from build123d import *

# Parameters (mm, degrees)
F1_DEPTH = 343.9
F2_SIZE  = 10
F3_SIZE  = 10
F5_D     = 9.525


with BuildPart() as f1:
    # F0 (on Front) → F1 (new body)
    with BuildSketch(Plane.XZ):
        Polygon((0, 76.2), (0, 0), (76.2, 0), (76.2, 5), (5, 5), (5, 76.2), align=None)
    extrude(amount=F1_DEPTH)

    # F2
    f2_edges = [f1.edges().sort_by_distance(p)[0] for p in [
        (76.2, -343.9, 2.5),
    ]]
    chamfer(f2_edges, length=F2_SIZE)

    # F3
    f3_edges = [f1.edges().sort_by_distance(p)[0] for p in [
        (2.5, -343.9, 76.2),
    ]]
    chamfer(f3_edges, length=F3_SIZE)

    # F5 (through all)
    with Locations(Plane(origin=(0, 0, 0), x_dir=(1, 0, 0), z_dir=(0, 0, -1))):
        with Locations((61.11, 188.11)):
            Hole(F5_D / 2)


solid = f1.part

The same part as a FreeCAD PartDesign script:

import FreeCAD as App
import Part
import Sketcher


def edges_at(feature, points):
    """Names of the edges that pass closest to the given points."""
    edges = feature.Shape.Edges
    near = lambda p: min(range(len(edges)), key=lambda i: edges[i].distToShape(Part.Vertex(*p))[0])
    return sorted({f"Edge{near(p) + 1}" for p in points})


def add_polygon(sketch, points):
    """Adds a closed chain of lines whose ends are joined by coincident constraints."""
    first, n = sketch.GeometryCount, len(points)
    for a, b in zip(points, points[1:] + points[:1]):
        sketch.addGeometry(Part.LineSegment(App.Vector(*a, 0), App.Vector(*b, 0)), False)
    for i in range(n):
        sketch.addConstraint(Sketcher.Constraint("Coincident", first + i, 2, first + (i + 1) % n, 1))

doc = App.newDocument("Part")
params = doc.addObject("Spreadsheet::Sheet", "Params")
for row, (alias, value) in enumerate([
    ("sketch1_width", "5 mm"),
    ("sketch1_width2", "76.2 mm"),
    ("pad1_length", "343.9 mm"),
    ("chamfer_size", "10 mm"),
    ("chamfer2_size", "10 mm"),
    ("hole_diameter", "9.525 mm"),
], start=1):
    params.set(f"A{row}", alias)
    params.set(f"B{row}", "=" + value)
    params.setAlias(f"B{row}", alias)

body = doc.addObject("PartDesign::Body", "Body")

sketch1 = doc.addObject("Sketcher::SketchObject", "Sketch")
body.addObject(sketch1)
sketch1.AttachmentSupport = (doc.XZ_Plane, [""])
sketch1.MapMode = "FlatFace"
add_polygon(sketch1, [(0, 76), (0, 0), (76, 0), (76, 5), (5, 5), (5, 76)])
sketch1.addConstraint([
    Sketcher.Constraint("Vertical", 0),
    Sketcher.Constraint("Horizontal", 1),
    Sketcher.Constraint("Vertical", 2),
    Sketcher.Constraint("Horizontal", 3),
    Sketcher.Constraint("Vertical", 4),
    Sketcher.Constraint("Horizontal", 5),
    Sketcher.Constraint("Coincident", 0, 2, -1, 1),
    Sketcher.Constraint("Equal", 1, 0),
    Sketcher.Constraint("Equal", 5, 2),
    Sketcher.Constraint("DistanceX", 5, 2, 5, 1, 5.0),
    Sketcher.Constraint("DistanceX", 1, 1, 1, 2, 76.2),
])
sketch1.setExpression("Constraints[15]", "Params.sketch1_width")
sketch1.setExpression("Constraints[16]", "Params.sketch1_width2")
pad1 = doc.addObject("PartDesign::Pad", "Pad")
body.addObject(pad1)
pad1.Profile = sketch1
pad1.setExpression("Length", "Params.pad1_length")
doc.recompute()

chamfer = doc.addObject("PartDesign::Chamfer", "Chamfer")
body.addObject(chamfer)
chamfer.Base = (pad1, edges_at(pad1, [(76.2, -343.9, 2.5)]))
chamfer.setExpression("Size", "Params.chamfer_size")
doc.recompute()

chamfer2 = doc.addObject("PartDesign::Chamfer", "Chamfer001")
body.addObject(chamfer2)
chamfer2.Base = (chamfer, edges_at(chamfer, [(2.5, -343.9, 76.2)]))
chamfer2.setExpression("Size", "Params.chamfer2_size")

sketch2 = doc.addObject("Sketcher::SketchObject", "Sketch001")
body.addObject(sketch2)
sketch2.AttachmentSupport = (doc.XY_Plane, [""])
sketch2.MapMode = "FlatFace"
sketch2.addGeometry(Part.Circle(App.Vector(61.1, -188.1, 0), App.Vector(0, 0, 1), 4.8), False)
sketch2.addConstraint([
    Sketcher.Constraint("Diameter", 0, 9.525),
    Sketcher.Constraint("DistanceX", -1, 1, 0, 3, 61.11),
    Sketcher.Constraint("DistanceY", 0, 3, -1, 1, 188.11),
])
doc.recompute()
hole = doc.addObject("PartDesign::Hole", "Hole")
body.addObject(hole)
hole.Profile = sketch2
hole.ThreadType = "None"
hole.setExpression("Diameter", "Params.hole_diameter")
hole.DepthType = "ThroughAll"
hole.Reversed = True

doc.recompute()
